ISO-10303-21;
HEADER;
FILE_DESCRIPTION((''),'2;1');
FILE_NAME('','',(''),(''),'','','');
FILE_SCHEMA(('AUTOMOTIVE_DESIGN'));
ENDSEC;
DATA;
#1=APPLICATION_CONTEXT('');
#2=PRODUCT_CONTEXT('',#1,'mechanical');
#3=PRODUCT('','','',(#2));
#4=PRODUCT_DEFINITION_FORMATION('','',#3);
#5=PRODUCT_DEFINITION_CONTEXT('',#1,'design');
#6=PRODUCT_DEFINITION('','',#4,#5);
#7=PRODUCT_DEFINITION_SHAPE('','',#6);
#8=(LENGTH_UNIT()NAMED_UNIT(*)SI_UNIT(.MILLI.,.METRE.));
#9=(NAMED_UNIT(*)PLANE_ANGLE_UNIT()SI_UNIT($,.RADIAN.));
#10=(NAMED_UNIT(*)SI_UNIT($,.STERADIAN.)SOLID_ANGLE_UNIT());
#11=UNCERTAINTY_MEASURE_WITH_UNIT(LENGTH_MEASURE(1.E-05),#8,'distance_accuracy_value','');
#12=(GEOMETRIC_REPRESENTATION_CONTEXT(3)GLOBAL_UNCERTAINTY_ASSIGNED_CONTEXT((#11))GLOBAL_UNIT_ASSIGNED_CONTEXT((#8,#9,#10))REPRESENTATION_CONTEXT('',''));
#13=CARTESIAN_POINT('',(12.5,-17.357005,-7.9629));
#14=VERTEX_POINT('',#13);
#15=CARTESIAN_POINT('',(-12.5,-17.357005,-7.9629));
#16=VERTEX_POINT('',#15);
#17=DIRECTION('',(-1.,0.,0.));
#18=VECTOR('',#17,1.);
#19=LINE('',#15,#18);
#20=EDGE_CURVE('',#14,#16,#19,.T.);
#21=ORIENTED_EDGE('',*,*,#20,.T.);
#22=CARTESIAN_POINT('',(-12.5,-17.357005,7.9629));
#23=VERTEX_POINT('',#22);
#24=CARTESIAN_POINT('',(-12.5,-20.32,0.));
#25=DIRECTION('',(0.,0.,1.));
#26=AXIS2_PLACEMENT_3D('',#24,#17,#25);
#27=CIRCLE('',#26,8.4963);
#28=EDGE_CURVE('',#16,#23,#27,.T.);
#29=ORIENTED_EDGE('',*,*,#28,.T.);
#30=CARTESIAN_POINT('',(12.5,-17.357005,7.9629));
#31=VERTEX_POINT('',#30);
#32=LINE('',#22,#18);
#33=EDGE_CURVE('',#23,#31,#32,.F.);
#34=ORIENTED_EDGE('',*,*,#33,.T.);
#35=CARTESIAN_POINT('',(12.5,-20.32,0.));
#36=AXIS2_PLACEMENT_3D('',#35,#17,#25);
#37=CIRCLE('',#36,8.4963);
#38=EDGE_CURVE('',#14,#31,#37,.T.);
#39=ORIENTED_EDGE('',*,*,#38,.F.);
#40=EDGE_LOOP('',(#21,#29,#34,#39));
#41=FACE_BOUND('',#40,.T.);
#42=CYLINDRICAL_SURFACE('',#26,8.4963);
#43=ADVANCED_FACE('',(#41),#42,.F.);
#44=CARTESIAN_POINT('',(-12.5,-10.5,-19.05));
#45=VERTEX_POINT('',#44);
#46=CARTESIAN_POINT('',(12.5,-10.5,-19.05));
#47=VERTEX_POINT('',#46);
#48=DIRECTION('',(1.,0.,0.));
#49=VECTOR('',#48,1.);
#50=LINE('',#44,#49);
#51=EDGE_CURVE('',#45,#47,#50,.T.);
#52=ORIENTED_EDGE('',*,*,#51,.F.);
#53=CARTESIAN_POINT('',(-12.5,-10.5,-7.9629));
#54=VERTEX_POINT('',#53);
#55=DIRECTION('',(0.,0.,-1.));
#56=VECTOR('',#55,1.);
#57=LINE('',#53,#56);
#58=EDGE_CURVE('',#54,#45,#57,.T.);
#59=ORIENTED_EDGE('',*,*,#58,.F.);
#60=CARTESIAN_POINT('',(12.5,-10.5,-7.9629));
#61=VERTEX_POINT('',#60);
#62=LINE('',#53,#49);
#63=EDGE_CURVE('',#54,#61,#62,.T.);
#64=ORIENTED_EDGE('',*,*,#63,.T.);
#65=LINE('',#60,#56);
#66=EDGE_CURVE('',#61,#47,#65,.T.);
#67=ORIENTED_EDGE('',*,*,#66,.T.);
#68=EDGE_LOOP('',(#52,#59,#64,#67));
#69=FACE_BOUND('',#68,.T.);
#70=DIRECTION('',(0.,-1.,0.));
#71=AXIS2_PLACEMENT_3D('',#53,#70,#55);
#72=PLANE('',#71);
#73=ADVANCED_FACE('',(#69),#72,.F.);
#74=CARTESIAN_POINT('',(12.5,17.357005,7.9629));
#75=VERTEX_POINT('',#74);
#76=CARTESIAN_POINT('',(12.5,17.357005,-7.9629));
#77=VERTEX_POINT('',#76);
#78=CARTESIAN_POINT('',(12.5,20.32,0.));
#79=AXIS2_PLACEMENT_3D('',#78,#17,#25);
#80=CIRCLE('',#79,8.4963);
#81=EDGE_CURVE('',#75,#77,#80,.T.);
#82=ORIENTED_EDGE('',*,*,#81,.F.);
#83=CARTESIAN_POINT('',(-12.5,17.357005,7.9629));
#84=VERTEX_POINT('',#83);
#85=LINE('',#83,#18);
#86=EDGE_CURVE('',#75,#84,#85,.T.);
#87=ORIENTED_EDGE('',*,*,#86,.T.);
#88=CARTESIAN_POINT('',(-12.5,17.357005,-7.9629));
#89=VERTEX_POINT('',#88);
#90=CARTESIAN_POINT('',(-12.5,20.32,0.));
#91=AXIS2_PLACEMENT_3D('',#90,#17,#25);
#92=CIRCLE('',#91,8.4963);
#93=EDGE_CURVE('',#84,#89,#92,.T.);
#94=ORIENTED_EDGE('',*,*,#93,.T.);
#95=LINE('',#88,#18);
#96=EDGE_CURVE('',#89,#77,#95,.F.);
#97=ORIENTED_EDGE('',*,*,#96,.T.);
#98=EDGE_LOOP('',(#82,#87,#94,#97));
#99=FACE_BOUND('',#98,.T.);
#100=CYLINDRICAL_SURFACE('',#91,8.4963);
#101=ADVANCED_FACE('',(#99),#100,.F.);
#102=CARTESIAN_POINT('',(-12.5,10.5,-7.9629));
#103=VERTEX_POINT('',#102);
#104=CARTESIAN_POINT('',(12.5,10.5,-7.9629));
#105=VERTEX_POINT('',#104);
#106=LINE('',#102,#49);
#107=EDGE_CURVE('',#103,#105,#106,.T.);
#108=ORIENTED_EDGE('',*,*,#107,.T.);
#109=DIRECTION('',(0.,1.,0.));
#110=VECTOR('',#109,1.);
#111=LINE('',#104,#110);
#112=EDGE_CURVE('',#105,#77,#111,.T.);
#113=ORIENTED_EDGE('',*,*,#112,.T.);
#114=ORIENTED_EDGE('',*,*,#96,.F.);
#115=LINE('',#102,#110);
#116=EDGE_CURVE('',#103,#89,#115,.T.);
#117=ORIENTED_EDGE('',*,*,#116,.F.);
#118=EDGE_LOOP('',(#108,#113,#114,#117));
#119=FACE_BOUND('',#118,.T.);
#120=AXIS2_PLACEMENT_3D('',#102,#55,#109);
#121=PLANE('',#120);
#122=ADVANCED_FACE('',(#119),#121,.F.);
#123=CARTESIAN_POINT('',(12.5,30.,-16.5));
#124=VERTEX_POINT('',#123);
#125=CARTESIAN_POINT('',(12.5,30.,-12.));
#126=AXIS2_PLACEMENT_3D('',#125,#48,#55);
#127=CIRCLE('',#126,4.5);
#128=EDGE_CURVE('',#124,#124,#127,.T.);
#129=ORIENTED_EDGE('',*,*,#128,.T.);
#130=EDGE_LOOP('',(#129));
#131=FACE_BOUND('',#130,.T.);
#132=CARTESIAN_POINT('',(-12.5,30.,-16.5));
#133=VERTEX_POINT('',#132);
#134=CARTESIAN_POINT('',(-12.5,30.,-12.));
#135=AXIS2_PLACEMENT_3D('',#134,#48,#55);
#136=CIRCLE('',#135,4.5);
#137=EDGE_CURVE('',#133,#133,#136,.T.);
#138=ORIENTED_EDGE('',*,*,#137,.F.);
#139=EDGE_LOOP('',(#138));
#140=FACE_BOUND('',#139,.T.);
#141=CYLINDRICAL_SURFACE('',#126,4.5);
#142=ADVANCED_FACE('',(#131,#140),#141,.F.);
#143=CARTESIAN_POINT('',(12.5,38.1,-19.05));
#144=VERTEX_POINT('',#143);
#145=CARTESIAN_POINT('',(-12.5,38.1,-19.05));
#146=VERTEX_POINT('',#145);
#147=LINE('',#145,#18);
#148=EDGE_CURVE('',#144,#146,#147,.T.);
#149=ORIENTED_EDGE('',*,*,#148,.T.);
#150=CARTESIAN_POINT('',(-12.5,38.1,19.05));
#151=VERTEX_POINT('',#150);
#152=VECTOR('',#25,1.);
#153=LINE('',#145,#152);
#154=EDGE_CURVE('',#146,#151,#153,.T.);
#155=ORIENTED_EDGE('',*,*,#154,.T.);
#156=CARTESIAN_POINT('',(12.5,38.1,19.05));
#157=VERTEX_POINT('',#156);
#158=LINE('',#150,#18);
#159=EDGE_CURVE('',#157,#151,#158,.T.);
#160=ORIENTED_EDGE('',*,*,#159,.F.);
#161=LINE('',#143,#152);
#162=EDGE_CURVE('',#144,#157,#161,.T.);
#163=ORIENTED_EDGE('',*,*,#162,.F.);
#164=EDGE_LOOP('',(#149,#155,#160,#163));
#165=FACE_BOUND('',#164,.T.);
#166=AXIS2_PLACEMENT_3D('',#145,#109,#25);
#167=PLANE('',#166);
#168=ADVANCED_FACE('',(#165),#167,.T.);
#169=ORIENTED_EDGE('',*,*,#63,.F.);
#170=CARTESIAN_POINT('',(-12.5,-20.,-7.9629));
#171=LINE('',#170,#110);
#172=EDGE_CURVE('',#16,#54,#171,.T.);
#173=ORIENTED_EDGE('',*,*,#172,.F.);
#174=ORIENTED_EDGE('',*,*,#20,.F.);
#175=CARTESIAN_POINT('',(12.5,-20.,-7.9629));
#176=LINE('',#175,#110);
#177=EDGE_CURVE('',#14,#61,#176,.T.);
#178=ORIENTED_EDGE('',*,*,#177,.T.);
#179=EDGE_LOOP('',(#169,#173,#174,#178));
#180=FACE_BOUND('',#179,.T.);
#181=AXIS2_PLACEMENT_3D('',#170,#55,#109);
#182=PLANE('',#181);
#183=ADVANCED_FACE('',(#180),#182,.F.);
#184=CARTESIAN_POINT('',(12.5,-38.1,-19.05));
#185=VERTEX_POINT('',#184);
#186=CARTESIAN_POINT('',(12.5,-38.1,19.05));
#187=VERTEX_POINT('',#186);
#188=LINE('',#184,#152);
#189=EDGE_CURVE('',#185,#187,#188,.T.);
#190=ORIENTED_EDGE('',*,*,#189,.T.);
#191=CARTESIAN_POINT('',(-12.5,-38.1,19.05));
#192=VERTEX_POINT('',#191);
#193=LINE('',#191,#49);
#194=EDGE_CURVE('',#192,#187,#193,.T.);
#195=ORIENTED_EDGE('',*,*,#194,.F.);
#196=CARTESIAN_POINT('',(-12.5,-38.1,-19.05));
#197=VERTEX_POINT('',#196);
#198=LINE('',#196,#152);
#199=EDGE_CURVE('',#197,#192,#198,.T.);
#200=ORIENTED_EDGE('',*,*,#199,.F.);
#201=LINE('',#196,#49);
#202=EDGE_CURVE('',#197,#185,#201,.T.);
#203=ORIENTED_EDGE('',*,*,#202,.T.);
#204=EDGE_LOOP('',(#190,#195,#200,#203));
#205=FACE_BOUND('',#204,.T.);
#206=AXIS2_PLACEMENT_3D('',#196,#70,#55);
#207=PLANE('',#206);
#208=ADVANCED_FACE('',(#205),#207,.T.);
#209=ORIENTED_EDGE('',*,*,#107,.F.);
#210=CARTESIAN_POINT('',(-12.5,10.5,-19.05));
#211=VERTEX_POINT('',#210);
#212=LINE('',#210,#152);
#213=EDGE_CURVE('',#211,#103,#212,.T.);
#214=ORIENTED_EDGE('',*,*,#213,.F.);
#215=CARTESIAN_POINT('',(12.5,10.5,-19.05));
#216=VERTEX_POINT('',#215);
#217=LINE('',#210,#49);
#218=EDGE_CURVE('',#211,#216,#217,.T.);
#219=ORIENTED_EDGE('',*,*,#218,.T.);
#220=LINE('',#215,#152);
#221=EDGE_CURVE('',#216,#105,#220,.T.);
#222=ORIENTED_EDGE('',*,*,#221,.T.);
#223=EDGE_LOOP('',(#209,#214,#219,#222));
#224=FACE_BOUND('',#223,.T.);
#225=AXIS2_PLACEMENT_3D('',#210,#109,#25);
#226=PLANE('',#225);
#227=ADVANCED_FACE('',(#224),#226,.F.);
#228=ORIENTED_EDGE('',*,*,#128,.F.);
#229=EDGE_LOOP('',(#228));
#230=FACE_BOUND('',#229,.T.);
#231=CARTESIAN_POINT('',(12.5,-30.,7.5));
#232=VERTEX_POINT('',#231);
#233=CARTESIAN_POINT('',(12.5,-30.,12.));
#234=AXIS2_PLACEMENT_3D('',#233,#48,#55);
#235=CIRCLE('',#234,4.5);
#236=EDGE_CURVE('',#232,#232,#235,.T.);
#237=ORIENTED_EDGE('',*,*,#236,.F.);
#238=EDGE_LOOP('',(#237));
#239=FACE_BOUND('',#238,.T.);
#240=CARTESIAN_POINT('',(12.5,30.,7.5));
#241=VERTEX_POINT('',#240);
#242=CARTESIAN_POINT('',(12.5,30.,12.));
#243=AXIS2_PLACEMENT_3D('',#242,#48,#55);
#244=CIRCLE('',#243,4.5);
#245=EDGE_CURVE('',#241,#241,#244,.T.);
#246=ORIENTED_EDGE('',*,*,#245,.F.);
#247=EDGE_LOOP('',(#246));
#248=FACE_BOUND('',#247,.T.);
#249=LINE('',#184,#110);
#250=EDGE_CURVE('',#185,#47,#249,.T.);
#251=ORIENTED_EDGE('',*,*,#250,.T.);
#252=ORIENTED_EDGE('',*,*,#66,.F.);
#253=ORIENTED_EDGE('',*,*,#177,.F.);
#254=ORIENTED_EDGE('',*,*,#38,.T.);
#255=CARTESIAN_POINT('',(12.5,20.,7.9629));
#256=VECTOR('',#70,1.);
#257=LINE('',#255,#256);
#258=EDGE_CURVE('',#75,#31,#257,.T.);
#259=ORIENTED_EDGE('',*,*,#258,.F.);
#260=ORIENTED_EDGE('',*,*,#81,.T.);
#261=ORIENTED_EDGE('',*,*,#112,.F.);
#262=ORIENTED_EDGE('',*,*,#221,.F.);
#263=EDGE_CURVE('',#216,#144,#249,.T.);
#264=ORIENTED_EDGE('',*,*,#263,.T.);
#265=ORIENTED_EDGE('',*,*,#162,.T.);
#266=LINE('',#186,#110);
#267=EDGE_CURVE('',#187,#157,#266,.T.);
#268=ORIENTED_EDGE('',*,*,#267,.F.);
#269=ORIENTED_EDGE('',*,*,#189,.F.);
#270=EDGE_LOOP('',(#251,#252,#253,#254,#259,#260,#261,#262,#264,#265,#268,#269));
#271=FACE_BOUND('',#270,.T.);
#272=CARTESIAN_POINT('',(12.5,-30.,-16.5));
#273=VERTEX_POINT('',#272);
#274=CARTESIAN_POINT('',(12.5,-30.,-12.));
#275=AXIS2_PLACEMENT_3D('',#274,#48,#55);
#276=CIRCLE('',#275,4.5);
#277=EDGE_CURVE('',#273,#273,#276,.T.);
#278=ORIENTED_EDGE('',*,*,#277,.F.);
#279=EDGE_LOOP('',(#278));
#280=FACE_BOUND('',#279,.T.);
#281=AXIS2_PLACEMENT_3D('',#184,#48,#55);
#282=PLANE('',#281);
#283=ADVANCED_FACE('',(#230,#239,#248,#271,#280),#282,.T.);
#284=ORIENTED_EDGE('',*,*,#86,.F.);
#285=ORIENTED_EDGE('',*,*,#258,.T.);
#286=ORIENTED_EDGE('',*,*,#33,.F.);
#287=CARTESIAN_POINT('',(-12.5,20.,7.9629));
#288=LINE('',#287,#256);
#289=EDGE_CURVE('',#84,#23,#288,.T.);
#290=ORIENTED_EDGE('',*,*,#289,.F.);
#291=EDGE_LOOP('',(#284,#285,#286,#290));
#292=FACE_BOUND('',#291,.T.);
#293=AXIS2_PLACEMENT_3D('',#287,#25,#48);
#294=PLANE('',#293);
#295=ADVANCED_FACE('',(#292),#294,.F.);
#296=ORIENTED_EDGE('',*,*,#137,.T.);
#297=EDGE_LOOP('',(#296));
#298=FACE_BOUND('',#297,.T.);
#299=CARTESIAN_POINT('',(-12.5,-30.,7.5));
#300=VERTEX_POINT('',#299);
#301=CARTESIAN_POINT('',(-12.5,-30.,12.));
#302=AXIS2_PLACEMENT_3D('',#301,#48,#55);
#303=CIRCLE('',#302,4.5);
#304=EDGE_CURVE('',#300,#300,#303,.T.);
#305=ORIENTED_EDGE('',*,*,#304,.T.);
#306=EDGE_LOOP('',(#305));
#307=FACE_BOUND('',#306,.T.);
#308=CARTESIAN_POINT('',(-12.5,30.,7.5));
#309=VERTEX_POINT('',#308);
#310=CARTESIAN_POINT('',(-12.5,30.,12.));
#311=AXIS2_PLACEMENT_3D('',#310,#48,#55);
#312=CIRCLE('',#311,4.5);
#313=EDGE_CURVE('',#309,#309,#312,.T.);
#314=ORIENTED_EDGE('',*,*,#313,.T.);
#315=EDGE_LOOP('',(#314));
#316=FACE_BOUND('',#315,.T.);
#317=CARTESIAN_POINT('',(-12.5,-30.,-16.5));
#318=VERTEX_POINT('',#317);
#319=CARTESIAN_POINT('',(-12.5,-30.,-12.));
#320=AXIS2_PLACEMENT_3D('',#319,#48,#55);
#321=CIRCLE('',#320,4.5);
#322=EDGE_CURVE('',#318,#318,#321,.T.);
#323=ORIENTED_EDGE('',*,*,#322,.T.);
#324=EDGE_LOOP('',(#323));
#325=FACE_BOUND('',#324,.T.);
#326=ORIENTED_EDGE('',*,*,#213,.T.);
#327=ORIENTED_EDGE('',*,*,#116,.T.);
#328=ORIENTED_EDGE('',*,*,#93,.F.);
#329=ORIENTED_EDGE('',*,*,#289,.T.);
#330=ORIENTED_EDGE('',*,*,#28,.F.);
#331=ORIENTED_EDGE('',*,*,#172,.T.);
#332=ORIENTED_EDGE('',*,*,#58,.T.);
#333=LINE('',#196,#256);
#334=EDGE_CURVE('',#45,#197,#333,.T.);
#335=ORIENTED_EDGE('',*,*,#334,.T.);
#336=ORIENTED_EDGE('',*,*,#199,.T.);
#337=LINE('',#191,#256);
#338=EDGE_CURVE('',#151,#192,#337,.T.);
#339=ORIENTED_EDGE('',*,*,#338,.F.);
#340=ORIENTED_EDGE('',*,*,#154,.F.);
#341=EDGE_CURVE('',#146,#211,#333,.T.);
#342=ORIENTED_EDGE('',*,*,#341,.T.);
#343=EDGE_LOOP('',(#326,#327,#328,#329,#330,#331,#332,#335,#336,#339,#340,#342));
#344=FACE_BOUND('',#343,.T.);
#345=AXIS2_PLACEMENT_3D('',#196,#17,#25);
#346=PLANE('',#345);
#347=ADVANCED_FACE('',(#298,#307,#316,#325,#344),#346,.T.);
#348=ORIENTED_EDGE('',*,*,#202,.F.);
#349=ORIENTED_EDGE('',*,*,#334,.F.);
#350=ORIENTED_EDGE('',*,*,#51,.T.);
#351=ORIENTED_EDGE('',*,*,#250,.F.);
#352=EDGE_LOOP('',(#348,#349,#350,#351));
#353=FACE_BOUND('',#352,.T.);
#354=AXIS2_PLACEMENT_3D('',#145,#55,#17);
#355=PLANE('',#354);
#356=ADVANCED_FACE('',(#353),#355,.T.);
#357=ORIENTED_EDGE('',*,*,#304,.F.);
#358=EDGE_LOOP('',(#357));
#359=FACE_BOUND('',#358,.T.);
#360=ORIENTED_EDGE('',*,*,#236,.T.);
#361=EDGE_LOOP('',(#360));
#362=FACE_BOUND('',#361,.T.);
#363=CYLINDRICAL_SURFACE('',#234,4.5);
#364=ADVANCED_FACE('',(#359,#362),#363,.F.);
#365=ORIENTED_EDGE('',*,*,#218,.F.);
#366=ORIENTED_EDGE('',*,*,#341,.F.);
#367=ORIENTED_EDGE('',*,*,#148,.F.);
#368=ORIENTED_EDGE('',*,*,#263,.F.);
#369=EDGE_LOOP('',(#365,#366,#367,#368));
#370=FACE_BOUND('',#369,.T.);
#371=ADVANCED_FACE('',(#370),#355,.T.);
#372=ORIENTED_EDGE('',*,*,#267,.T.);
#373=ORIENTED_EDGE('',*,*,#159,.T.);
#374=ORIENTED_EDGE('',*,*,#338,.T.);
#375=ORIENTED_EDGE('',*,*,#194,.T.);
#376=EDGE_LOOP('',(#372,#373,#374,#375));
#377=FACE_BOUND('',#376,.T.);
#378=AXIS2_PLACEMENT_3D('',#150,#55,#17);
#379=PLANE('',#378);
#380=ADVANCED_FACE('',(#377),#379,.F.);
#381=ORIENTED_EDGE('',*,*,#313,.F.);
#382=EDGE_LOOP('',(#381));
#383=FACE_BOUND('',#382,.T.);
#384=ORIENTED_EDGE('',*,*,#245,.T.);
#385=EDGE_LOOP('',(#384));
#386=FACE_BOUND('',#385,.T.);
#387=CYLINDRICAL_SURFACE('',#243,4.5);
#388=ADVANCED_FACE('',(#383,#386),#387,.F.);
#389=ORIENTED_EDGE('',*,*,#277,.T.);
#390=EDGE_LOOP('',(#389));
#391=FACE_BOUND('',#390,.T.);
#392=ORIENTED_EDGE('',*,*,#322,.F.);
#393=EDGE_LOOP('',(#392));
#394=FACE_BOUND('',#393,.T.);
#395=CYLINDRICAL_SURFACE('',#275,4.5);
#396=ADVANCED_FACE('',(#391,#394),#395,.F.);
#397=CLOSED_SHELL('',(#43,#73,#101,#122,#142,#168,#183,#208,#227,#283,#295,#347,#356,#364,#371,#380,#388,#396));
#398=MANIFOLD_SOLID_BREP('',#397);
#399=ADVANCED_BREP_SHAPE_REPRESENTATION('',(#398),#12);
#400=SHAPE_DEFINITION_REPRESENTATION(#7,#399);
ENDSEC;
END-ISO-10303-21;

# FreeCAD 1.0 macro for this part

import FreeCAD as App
import Part
import Sketcher

V = App.Vector


def add_polygon(sketch, points):
    """Adds a closed chain of lines whose ends are joined by coincident constraints."""
    first, n = sketch.GeometryCount, len(points)
    for a, b in zip(points, points[1:] + points[:1]):
        sketch.addGeometry(Part.LineSegment(App.Vector(*a, 0), App.Vector(*b, 0)), False)
    for i in range(n):
        sketch.addConstraint(Sketcher.Constraint("Coincident", first + i, 2, first + (i + 1) % n, 1))

doc = App.newDocument("Part")
params = doc.addObject("Spreadsheet::Sheet", "Params")
for row, (alias, value) in enumerate([
    ("sketch1_width", "25 mm"),
    ("sketch1_height", "76.2 mm"),
    ("pad1_length", "38.1 mm"),
    ("hole_diameter", "16.9926 mm"),
    ("sketch3_width", "40 mm"),
    ("sketch3_width2", "21 mm"),
    ("sketch4_diameter", "9 mm"),
    ("hole2_diameter", "9 mm"),
], start=1):
    params.set(f"A{row}", alias)
    params.set(f"B{row}", "=" + value)
    params.setAlias(f"B{row}", alias)

body = doc.addObject("PartDesign::Body", "Body")

# Sketch on XY plane
sketch1 = doc.addObject("Sketcher::SketchObject", "Sketch")
body.addObject(sketch1)
sketch1.AttachmentSupport = (doc.XY_Plane, [""])
sketch1.MapMode = "FlatFace"
add_polygon(sketch1, [(-12, 38), (-12, -38), (12, -38), (12, 38)])  # lines 0-3
sketch1.addConstraint([
    Sketcher.Constraint("Vertical", 0),
    Sketcher.Constraint("Horizontal", 1),
    Sketcher.Constraint("Vertical", 2),
    Sketcher.Constraint("Horizontal", 3),
    Sketcher.Constraint("Symmetric", 0, 2, 2, 2, -1, 1),
    Sketcher.Constraint("DistanceX", 1, 1, 1, 2, 25.0),
    Sketcher.Constraint("DistanceY", 0, 2, 0, 1, 76.2),
])
sketch1.setExpression("Constraints[9]", "Params.sketch1_width")
sketch1.setExpression("Constraints[10]", "Params.sketch1_height")
pad1 = doc.addObject("PartDesign::Pad", "Pad")
body.addObject(pad1)
pad1.Profile = sketch1
pad1.setExpression("Length", "Params.pad1_length")
pad1.Midplane = True

# Sketch on YZ plane
sketch2 = doc.addObject("Sketcher::SketchObject", "Sketch001")
body.addObject(sketch2)
sketch2.AttachmentSupport = (doc.YZ_Plane, [""])
sketch2.MapMode = "FlatFace"
sketch2.AttachmentOffset = App.Placement(V(0, 0, -12.5), App.Rotation())
sketch2.addGeometry([
    Part.Circle(V(-20, 0, 0), V(0, 0, 1), 8),
    Part.Circle(V(20, 0, 0), V(0, 0, 1), 8),
], False)
sketch2.addConstraint([
    Sketcher.Constraint("Equal", 0, 1),
    Sketcher.Constraint("Symmetric", 0, 3, 1, 3, -1, 1),
    Sketcher.Constraint("PointOnObject", 0, 3, -1),
    Sketcher.Constraint("Diameter", 0, 16.9926),
    Sketcher.Constraint("DistanceX", 0, 3, -1, 1, 20.32),
])
doc.recompute()
hole = doc.addObject("PartDesign::Hole", "Hole")
body.addObject(hole)
hole.Profile = sketch2
hole.ThreadType = "None"
hole.setExpression("Diameter", "Params.hole_diameter")
hole.DepthType = "ThroughAll"
hole.Reversed = True

# Sketch on YZ plane
sketch3 = doc.addObject("Sketcher::SketchObject", "Sketch002")
body.addObject(sketch3)
sketch3.AttachmentSupport = (doc.YZ_Plane, [""])
sketch3.MapMode = "FlatFace"
sketch3.AttachmentOffset = App.Placement(V(0, 0, 12.5), App.Rotation())
add_polygon(sketch3, [(10, -19), (10, -8), (20, -8), (20, 8), (-20, 8), (-20, -8), (-10, -8), (-10, -19)])  # lines 0-7
sketch3.addConstraint([
    Sketcher.Constraint("Vertical", 0),
    Sketcher.Constraint("Horizontal", 1),
    Sketcher.Constraint("Vertical", 2),
    Sketcher.Constraint("Horizontal", 3),
    Sketcher.Constraint("Vertical", 4),
    Sketcher.Constraint("Horizontal", 5),
    Sketcher.Constraint("Vertical", 6),
    Sketcher.Constraint("Horizontal", 7),
    Sketcher.Constraint("Symmetric", 1, 2, 3, 2, -1, 1),
    Sketcher.Constraint("Symmetric", 0, 2, 5, 2, -2),
    Sketcher.Constraint("DistanceX", 3, 2, 3, 1, 40.0),
    Sketcher.Constraint("DistanceX", 7, 1, 7, 2, 21.0),
    Sketcher.Constraint("DistanceY", 6, 2, -1, 1, 19.05),
    Sketcher.Constraint("DistanceY", 0, 1, 0, 2, 11.0871),
])
sketch3.setExpression("Constraints[18]", "Params.sketch3_width")
sketch3.setExpression("Constraints[19]", "Params.sketch3_width2")
pocket1 = doc.addObject("PartDesign::Pocket", "Pocket")
body.addObject(pocket1)
pocket1.Profile = sketch3
pocket1.Type = "ThroughAll"

# Sketch on YZ plane
sketch4 = doc.addObject("Sketcher::SketchObject", "Sketch003")
body.addObject(sketch4)
sketch4.AttachmentSupport = (doc.YZ_Plane, [""])
sketch4.MapMode = "FlatFace"
sketch4.AttachmentOffset = App.Placement(V(0, 0, 12.5), App.Rotation())
sketch4.addGeometry([
    Part.Circle(V(30, 12, 0), V(0, 0, 1), 4.5),
    Part.Circle(V(30, -12, 0), V(0, 0, 1), 4.5),
    Part.Circle(V(-30, -12, 0), V(0, 0, 1), 4.5),
    Part.Circle(V(-30, 12, 0), V(0, 0, 1), 4.5),
], False)
sketch4.addConstraint([
    Sketcher.Constraint("Equal", 0, 1),
    Sketcher.Constraint("Equal", 1, 2),
    Sketcher.Constraint("Equal", 2, 3),
    Sketcher.Constraint("Symmetric", 0, 3, 2, 3, -1, 1),
    Sketcher.Constraint("Symmetric", 1, 3, 3, 3, -1, 1),
    Sketcher.Constraint("Symmetric", 1, 3, 2, 3, -2),
    Sketcher.Constraint("Diameter", 0, 9.0),
    Sketcher.Constraint("DistanceX", -1, 1, 0, 3, 30.0),
    Sketcher.Constraint("DistanceY", -1, 1, 0, 3, 12.0),
])
sketch4.setExpression("Constraints[6]", "Params.sketch4_diameter")
doc.recompute()
hole2 = doc.addObject("PartDesign::Hole", "Hole001")
body.addObject(hole2)
hole2.Profile = sketch4
hole2.ThreadType = "None"
hole2.setExpression("Diameter", "Params.hole2_diameter")
hole2.DepthType = "ThroughAll"

doc.recompute()
